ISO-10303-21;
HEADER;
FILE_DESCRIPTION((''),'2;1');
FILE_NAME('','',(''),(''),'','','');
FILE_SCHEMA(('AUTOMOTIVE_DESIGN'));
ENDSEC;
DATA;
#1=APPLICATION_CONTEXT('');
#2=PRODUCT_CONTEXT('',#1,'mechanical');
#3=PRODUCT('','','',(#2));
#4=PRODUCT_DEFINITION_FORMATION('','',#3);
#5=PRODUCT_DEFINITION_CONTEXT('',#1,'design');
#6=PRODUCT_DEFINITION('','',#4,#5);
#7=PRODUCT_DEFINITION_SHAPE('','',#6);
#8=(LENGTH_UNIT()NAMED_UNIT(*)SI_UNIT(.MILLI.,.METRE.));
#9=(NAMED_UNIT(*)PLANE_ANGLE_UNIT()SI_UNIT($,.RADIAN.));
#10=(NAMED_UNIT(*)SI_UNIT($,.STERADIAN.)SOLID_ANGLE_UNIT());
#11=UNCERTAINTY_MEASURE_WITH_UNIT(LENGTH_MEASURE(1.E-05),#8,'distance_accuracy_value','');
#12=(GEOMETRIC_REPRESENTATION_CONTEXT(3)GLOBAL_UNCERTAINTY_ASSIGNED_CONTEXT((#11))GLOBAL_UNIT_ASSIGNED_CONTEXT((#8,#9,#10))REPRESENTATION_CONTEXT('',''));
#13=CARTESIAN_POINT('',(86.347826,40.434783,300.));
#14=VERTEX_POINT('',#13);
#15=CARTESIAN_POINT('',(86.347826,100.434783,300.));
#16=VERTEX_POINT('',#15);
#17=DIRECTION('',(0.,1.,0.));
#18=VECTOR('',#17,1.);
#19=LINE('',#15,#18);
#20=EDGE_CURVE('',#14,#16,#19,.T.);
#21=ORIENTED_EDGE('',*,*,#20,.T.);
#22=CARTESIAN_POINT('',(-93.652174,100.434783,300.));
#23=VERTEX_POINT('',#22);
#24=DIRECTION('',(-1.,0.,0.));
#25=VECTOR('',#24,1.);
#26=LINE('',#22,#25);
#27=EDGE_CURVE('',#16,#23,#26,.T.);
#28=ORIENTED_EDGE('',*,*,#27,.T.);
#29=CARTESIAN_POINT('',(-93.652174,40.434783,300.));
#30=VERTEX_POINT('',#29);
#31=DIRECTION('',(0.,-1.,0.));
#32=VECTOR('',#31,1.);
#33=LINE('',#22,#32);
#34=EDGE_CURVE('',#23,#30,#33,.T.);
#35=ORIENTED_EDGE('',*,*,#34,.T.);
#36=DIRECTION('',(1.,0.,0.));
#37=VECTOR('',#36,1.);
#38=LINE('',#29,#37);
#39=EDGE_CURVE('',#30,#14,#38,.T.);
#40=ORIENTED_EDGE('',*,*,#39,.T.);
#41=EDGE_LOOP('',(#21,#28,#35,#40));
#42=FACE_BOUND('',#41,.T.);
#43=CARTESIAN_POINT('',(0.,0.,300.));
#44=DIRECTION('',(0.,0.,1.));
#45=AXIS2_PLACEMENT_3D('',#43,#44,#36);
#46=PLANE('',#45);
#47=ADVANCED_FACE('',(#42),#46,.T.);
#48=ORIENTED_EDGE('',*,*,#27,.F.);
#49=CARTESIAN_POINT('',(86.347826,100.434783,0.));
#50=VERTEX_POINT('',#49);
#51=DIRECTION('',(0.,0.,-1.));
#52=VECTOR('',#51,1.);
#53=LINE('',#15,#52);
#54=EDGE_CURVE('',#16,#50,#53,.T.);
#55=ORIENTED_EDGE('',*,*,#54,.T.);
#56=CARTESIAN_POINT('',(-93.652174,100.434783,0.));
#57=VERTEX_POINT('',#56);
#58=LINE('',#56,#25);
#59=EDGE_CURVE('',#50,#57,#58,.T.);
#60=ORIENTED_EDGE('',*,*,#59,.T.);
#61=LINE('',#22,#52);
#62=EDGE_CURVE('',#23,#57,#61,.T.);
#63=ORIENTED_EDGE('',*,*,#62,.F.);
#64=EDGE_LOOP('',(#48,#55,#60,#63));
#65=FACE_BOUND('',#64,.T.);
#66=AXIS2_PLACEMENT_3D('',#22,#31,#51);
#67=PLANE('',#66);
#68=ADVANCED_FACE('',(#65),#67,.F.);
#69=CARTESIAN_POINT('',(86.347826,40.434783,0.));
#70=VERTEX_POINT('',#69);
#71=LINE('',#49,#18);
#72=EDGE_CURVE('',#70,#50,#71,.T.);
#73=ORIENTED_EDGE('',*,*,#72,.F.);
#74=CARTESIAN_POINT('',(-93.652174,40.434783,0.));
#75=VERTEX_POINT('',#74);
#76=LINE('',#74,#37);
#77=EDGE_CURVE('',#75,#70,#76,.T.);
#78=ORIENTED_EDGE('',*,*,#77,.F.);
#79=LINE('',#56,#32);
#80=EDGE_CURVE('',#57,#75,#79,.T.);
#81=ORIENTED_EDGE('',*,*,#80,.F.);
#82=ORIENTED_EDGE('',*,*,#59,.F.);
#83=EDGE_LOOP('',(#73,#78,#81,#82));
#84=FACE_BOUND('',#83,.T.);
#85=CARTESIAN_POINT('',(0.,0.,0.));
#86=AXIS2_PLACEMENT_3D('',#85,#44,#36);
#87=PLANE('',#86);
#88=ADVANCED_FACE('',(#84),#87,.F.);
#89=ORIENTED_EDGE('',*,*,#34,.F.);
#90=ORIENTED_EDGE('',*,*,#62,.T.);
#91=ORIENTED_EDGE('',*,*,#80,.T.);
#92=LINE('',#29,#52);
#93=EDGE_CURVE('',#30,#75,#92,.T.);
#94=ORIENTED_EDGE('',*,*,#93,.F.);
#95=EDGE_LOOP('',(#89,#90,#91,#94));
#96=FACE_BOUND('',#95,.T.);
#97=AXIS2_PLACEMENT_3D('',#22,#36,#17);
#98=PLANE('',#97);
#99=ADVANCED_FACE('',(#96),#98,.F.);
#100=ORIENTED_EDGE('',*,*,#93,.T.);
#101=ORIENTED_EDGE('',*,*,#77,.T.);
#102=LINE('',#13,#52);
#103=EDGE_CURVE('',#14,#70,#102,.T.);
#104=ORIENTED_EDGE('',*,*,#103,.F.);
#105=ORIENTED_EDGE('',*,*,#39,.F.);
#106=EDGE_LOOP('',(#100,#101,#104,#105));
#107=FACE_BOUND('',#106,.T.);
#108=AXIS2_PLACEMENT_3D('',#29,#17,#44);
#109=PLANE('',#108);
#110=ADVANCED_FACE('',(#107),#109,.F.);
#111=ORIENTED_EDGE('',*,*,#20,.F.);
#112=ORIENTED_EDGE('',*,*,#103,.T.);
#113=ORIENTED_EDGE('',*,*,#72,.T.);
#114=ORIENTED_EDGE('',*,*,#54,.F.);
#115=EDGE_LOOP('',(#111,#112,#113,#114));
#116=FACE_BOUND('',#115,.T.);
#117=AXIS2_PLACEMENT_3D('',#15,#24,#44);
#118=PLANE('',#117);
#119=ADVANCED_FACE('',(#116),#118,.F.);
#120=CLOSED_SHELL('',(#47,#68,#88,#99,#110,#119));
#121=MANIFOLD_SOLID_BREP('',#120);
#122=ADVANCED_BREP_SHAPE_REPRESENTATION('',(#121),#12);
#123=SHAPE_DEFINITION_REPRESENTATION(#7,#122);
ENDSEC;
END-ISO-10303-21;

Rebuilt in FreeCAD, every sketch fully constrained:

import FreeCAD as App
import Part
import Sketcher


def add_polygon(sketch, points):
    """Adds a closed chain of lines whose ends are joined by coincident constraints."""
    first, n = sketch.GeometryCount, len(points)
    for a, b in zip(points, points[1:] + points[:1]):
        sketch.addGeometry(Part.LineSegment(App.Vector(*a, 0), App.Vector(*b, 0)), False)
    for i in range(n):
        sketch.addConstraint(Sketcher.Constraint("Coincident", first + i, 2, first + (i + 1) % n, 1))

doc = App.newDocument("Part")
body = doc.addObject("PartDesign::Body", "Body")

# Sketch on XY plane
sketch1 = body.newObject("Sketcher::SketchObject", "Sketch")
sketch1.AttachmentSupport = (doc.getObject("XY_Plane"), [""])
sketch1.MapMode = "FlatFace"
add_polygon(sketch1, [(-94, 100), (-94, 40), (86, 40), (86, 100)])  # lines 0-3
sketch1.addConstraint([
    Sketcher.Constraint("Vertical", 0),
    Sketcher.Constraint("Horizontal", 1),
    Sketcher.Constraint("Vertical", 2),
    Sketcher.Constraint("Horizontal", 3),
    Sketcher.Constraint("DistanceX", 1, 1, 1, 2, 180.0),
    Sketcher.Constraint("DistanceY", 0, 2, 0, 1, 60.0),
    Sketcher.Constraint("DistanceX", 0, 2, -1, 1, 93.652174),
    Sketcher.Constraint("DistanceY", -1, 1, 0, 2, 40.434783),
])
pad1 = body.newObject("PartDesign::Pad", "Pad")
pad1.Profile = sketch1
pad1.Length = 300

doc.recompute()
